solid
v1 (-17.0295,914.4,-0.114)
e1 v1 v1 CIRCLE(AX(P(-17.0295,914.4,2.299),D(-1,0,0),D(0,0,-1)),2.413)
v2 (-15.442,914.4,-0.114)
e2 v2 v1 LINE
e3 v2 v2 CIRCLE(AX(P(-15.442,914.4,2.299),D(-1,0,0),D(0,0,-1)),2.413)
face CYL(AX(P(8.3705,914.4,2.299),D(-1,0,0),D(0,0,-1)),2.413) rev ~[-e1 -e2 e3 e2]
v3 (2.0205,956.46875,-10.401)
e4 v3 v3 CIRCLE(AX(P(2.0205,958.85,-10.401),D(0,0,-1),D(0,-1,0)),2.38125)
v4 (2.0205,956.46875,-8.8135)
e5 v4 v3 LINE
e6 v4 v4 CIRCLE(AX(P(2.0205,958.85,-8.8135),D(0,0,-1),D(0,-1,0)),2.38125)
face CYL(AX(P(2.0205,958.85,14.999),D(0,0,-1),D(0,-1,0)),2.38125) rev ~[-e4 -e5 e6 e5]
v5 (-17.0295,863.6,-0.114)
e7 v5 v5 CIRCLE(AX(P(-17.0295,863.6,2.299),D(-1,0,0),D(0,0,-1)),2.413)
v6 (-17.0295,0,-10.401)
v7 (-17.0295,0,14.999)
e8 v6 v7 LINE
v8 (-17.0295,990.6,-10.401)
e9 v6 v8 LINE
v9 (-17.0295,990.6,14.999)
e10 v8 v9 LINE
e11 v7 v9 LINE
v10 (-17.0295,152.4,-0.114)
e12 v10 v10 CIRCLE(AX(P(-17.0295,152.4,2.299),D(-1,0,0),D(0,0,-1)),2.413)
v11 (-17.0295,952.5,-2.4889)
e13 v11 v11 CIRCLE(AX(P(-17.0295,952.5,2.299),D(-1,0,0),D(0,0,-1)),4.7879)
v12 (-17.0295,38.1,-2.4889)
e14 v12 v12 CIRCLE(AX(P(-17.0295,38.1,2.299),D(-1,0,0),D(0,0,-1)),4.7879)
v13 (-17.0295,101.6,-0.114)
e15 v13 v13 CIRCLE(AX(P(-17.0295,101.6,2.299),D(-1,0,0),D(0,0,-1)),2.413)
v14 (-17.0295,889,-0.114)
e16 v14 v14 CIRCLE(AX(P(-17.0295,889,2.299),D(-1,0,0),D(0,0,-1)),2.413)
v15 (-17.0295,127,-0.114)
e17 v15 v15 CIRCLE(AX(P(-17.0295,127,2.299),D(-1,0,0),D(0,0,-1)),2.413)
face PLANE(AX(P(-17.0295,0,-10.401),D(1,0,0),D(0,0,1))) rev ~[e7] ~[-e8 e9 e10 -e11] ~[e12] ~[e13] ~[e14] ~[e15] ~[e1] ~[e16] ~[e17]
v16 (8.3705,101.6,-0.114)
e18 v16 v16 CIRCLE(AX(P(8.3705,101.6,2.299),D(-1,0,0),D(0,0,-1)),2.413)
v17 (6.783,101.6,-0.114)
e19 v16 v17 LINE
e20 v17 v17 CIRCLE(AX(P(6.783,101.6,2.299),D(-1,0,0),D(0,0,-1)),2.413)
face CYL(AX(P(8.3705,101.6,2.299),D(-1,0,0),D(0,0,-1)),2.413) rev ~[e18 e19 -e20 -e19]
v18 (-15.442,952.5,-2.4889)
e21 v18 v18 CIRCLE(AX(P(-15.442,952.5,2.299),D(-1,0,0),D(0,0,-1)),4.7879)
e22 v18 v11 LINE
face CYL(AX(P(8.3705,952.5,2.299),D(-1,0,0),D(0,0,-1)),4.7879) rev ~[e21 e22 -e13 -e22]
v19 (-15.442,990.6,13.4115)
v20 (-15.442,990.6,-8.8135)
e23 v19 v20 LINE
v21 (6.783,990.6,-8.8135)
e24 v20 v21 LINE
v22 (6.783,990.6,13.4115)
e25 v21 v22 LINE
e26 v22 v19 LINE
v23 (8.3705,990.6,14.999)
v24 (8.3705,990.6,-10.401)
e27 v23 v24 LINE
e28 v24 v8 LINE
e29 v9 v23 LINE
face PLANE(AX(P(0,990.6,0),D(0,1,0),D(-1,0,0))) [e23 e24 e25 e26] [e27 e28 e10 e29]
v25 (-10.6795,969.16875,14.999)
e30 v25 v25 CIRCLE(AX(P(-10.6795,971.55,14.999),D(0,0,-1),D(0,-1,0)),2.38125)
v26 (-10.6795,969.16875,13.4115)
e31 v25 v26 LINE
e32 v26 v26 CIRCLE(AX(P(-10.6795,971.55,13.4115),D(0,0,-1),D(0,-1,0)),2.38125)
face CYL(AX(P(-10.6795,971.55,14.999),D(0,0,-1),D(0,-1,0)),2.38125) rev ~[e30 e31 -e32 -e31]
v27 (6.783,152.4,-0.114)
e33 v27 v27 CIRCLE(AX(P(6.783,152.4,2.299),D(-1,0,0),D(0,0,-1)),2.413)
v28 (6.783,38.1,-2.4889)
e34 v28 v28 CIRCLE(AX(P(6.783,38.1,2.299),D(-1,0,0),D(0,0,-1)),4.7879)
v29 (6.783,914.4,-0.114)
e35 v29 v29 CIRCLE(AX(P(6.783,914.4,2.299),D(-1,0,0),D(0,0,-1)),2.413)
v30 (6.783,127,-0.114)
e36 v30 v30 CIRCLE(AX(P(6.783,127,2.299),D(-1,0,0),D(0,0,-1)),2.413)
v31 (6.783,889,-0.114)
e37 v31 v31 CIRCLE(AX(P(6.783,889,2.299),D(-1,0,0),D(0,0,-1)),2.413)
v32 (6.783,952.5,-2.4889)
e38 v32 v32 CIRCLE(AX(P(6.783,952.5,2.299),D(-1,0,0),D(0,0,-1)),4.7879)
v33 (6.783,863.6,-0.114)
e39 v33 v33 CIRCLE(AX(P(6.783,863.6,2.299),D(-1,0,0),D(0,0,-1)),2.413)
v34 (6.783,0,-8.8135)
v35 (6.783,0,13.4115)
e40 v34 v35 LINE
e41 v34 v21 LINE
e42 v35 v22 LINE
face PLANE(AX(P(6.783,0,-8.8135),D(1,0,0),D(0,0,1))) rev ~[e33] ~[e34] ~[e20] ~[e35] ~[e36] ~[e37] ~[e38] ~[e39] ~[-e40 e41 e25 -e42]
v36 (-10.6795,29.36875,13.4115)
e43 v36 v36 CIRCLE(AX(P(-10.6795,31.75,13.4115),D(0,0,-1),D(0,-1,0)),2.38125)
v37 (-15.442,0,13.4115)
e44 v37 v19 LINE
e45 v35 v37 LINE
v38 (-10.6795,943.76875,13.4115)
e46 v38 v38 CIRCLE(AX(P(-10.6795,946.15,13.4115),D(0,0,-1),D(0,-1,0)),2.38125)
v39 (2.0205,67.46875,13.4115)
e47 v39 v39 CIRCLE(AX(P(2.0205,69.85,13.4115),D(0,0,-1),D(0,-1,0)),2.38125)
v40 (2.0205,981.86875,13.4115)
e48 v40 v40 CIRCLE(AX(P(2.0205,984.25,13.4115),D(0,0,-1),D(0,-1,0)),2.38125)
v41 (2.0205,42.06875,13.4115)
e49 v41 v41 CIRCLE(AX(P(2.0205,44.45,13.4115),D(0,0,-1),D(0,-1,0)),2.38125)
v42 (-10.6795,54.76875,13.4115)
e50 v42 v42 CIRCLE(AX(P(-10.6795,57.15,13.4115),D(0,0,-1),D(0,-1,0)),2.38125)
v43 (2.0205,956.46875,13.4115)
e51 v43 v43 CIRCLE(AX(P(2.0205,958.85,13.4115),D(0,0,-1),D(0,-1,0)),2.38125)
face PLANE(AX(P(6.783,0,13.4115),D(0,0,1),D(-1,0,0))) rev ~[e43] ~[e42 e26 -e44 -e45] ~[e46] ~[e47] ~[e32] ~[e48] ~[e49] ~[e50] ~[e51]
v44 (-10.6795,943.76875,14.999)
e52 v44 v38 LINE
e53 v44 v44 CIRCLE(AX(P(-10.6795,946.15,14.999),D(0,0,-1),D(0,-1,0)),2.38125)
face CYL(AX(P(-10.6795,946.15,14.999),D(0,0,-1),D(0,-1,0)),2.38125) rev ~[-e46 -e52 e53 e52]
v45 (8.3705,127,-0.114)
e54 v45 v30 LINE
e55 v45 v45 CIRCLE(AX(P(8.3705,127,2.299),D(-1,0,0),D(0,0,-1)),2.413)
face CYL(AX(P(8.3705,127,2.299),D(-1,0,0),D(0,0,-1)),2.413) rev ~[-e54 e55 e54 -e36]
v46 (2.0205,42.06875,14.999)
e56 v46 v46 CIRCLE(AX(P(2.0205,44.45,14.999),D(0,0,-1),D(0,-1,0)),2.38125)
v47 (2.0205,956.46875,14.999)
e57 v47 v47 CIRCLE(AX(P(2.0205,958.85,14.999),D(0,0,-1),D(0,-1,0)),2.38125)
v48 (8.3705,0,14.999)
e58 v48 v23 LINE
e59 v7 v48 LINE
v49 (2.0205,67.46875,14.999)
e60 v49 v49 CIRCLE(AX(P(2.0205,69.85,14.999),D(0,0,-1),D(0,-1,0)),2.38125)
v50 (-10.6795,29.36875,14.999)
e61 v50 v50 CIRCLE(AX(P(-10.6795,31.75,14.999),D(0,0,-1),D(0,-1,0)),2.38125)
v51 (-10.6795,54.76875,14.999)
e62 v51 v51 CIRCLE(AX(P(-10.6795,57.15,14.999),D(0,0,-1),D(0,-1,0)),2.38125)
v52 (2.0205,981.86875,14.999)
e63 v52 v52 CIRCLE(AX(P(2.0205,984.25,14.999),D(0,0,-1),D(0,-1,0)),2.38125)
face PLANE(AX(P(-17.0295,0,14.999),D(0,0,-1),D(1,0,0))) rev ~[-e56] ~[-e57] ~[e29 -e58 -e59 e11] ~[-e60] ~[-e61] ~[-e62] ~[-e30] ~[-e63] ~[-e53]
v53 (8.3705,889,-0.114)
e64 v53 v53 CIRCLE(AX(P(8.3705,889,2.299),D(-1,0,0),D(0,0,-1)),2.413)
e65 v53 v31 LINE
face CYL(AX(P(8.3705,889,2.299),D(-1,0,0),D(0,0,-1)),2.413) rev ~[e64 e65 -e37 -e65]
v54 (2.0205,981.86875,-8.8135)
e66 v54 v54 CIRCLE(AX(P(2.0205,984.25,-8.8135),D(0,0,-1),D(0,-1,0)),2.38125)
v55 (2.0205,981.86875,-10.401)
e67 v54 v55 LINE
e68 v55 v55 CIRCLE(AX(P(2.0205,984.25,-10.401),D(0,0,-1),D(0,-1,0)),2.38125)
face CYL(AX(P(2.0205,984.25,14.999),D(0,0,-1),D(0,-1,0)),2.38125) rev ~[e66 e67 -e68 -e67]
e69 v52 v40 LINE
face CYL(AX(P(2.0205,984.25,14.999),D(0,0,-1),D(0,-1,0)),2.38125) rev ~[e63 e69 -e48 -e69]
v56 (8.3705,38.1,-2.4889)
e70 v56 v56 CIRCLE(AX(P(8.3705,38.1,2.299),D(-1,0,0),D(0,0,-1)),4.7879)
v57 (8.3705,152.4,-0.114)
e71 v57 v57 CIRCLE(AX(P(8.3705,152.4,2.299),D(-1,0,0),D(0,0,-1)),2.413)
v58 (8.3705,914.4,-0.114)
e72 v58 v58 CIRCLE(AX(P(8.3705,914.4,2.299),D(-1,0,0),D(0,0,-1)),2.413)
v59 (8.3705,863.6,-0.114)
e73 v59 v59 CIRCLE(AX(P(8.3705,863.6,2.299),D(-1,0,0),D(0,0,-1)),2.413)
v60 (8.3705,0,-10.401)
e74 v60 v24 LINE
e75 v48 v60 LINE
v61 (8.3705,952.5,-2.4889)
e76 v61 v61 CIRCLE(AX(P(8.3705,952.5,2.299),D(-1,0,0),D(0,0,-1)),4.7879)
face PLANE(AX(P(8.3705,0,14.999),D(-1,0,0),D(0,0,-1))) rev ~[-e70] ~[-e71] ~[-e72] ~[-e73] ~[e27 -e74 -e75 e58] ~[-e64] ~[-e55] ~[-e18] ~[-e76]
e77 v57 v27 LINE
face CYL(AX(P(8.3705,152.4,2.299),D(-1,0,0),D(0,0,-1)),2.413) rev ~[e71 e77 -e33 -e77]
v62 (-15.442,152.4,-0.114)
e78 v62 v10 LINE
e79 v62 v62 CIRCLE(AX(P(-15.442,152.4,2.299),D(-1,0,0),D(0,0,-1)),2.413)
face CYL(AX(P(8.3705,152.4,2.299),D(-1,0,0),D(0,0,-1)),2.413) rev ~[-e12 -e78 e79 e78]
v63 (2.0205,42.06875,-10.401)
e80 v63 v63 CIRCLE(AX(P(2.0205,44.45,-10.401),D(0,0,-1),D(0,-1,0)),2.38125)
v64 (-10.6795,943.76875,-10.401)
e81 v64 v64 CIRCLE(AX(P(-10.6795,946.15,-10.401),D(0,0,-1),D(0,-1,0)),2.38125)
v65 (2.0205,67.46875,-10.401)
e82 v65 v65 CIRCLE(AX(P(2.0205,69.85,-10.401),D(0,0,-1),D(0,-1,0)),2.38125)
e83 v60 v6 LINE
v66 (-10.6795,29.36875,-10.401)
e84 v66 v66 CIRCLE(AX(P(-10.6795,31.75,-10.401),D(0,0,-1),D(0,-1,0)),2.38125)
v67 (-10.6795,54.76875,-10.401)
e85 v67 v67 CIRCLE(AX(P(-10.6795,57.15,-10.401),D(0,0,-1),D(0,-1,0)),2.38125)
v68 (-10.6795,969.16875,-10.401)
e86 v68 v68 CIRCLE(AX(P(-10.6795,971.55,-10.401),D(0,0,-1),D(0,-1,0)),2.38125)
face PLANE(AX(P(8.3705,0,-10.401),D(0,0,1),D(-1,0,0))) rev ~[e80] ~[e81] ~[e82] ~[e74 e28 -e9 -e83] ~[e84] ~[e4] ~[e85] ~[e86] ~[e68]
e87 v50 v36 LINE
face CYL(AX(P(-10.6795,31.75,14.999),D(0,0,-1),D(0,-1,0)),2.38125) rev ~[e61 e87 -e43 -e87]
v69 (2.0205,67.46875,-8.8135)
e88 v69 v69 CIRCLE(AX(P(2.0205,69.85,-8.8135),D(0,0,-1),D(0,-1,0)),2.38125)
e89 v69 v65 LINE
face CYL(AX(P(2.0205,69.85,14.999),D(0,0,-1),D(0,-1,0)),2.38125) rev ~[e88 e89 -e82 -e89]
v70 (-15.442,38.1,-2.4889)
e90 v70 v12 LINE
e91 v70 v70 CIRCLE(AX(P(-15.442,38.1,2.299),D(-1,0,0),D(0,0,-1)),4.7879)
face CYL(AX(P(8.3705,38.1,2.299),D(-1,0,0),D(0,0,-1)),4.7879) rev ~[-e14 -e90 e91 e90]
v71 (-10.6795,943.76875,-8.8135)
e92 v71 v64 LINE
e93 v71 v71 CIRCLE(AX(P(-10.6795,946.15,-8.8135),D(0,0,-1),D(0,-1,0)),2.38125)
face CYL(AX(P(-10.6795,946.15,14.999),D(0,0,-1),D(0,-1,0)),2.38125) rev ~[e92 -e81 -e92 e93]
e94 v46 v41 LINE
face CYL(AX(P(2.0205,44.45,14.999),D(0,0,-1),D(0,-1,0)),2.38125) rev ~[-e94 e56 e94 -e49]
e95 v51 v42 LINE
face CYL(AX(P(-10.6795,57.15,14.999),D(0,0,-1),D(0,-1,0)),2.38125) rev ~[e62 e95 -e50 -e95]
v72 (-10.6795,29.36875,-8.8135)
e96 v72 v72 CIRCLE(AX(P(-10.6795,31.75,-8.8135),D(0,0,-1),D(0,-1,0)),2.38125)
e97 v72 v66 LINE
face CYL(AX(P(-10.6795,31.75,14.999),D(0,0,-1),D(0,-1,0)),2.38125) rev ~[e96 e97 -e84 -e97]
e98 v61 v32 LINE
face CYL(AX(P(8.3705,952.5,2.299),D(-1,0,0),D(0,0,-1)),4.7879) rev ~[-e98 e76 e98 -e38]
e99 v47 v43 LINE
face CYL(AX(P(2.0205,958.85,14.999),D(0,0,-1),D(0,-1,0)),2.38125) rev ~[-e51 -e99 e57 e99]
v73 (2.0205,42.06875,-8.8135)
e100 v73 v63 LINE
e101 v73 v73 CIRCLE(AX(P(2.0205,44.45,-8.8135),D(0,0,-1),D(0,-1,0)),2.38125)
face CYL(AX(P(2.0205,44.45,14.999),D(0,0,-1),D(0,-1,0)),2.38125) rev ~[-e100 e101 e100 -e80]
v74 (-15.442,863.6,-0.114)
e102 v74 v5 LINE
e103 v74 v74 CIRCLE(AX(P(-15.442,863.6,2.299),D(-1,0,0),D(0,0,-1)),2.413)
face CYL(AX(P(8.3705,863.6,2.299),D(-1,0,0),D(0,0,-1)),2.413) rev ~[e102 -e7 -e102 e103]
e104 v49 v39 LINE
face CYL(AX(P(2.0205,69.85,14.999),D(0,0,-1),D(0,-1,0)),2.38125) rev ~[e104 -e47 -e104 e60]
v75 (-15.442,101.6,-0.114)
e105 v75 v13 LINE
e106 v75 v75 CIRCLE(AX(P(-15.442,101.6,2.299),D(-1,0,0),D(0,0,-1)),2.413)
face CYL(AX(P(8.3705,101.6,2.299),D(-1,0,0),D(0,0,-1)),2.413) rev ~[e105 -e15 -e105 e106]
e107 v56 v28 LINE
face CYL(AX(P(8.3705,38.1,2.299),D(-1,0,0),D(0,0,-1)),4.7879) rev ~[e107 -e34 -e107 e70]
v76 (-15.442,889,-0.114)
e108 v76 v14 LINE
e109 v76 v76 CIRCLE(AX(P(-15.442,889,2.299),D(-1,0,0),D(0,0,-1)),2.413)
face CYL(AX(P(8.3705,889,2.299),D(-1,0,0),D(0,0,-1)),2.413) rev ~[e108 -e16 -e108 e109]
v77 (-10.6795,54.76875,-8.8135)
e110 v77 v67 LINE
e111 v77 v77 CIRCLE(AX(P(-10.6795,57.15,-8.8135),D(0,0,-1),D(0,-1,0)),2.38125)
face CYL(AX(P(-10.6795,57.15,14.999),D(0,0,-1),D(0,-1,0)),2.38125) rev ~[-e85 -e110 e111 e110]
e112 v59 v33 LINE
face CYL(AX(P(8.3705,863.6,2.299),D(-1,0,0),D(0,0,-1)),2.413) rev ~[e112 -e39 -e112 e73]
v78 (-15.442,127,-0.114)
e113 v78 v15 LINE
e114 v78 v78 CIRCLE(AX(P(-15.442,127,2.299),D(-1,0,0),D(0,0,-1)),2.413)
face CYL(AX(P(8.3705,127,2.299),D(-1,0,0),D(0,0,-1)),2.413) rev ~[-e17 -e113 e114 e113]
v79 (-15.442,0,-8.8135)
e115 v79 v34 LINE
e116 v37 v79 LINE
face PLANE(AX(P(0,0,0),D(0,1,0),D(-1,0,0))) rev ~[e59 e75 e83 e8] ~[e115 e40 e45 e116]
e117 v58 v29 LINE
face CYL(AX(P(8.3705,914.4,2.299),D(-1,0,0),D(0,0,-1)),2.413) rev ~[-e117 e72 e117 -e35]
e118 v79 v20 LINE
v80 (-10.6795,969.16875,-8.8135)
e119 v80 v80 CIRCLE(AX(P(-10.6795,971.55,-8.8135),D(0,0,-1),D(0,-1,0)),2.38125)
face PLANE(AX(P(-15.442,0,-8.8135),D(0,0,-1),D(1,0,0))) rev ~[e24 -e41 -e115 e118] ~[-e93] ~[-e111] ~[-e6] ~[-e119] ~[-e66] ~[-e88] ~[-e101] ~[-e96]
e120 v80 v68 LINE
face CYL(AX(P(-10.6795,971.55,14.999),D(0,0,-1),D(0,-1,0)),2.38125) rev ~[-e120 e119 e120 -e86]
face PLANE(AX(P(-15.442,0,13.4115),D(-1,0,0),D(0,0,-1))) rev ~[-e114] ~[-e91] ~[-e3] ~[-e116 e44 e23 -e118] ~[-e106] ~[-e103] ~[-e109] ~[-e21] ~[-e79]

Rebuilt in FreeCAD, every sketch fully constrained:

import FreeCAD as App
import Part
import Sketcher

V = App.Vector
Q = App.Units.Quantity

doc = App.newDocument("Part")
body = doc.addObject("PartDesign::Body", "Body")

# Sketch on XZ plane
sketch1 = body.newObject("Sketcher::SketchObject", "Sketch")
sketch1.AttachmentSupport = (doc.getObject("XZ_Plane"), [""])
sketch1.MapMode = "FlatFace"
sketch1.addGeometry([
    Part.LineSegment(V(-17, -10, 0), V(-17, 15, 0)),  # 0
    Part.LineSegment(V(-17, 15, 0), V(8, 15, 0)),  # 1
    Part.LineSegment(V(8, 15, 0), V(8, -10, 0)),  # 2
    Part.LineSegment(V(8, -10, 0), V(-17, -10, 0)),  # 3
    Part.LineSegment(V(-15, 13, 0), V(-15, -9, 0)),  # 4
    Part.LineSegment(V(-15, -9, 0), V(7, -9, 0)),  # 5
    Part.LineSegment(V(7, -9, 0), V(7, 13, 0)),  # 6
    Part.LineSegment(V(7, 13, 0), V(-15, 13, 0)),  # 7
], False)
sketch1.addConstraint([
    Sketcher.Constraint("Coincident", 0, 2, 1, 1),
    Sketcher.Constraint("Coincident", 1, 2, 2, 1),
    Sketcher.Constraint("Coincident", 2, 2, 3, 1),
    Sketcher.Constraint("Coincident", 3, 2, 0, 1),
    Sketcher.Constraint("Coincident", 4, 2, 5, 1),
    Sketcher.Constraint("Coincident", 5, 2, 6, 1),
    Sketcher.Constraint("Coincident", 6, 2, 7, 1),
    Sketcher.Constraint("Coincident", 7, 2, 4, 1),
    Sketcher.Constraint("Vertical", 0),
    Sketcher.Constraint("Horizontal", 1),
    Sketcher.Constraint("Vertical", 2),
    Sketcher.Constraint("Horizontal", 3),
    Sketcher.Constraint("Vertical", 4),
    Sketcher.Constraint("Horizontal", 5),
    Sketcher.Constraint("Vertical", 6),
    Sketcher.Constraint("Horizontal", 7),
    Sketcher.Constraint("Equal", 3, 0),
    Sketcher.Constraint("Equal", 7, 4),
    Sketcher.Constraint("DistanceX", 1, 1, 1, 2, Q("1 in")),
    Sketcher.Constraint("DistanceX", 3, 2, 4, 2, Q("0.0625 in")),
    Sketcher.Constraint("DistanceY", 3, 2, 4, 2, Q("0.0625 in")),
    Sketcher.Constraint("DistanceX", 5, 2, 2, 2, Q("0.0625 in")),
    Sketcher.Constraint("DistanceY", 4, 2, -1, 1, Q("0.347 in")),
    Sketcher.Constraint("DistanceX", 0, 2, -1, 1, 17.0295),
])
pad1 = body.newObject("PartDesign::Pad", "Pad")
pad1.Profile = sketch1
pad1.Length = Q("39 in")
pad1.Reversed = True

# Sketch on YZ plane
sketch2 = body.newObject("Sketcher::SketchObject", "Sketch001")
sketch2.AttachmentSupport = (doc.getObject("YZ_Plane"), [""])
sketch2.MapMode = "FlatFace"
sketch2.AttachmentOffset = App.Placement(V(0, 0, 8.3705), App.Rotation())
sketch2.addGeometry(Part.Circle(V(38.1, 2.3, 0), V(0, 0, 1), 4.8), False)
sketch2.addConstraint([
    Sketcher.Constraint("Diameter", 0, Q("0.377 in")),
    Sketcher.Constraint("DistanceX", -1, 1, 0, 3, Q("1.5 in")),
    Sketcher.Constraint("DistanceY", -1, 1, 0, 3, Q("0.0905 in")),
])
doc.recompute()
hole = body.newObject("PartDesign::Hole", "Hole")
hole.Profile = sketch2
hole.ThreadType = "None"
hole.Diameter = Q("0.377 in")
hole.DepthType = "Dimension"
hole.Depth = Q("1 in")
hole.DrillPoint = "Angled"
hole.DrillPointAngle = 118

# Sketch on YZ plane
sketch3 = body.newObject("Sketcher::SketchObject", "Sketch002")
sketch3.AttachmentSupport = (doc.getObject("YZ_Plane"), [""])
sketch3.MapMode = "FlatFace"
sketch3.AttachmentOffset = App.Placement(V(0, 0, 8.3705), App.Rotation())
sketch3.addGeometry(Part.Circle(V(952.5, 2.3, 0), V(0, 0, 1), 4.8), False)
sketch3.addConstraint([
    Sketcher.Constraint("Diameter", 0, Q("0.377 in")),
    Sketcher.Constraint("DistanceX", -1, 1, 0, 3, Q("37.5 in")),
    Sketcher.Constraint("DistanceY", -1, 1, 0, 3, Q("0.0905 in")),
])
doc.recompute()
hole2 = body.newObject("PartDesign::Hole", "Hole001")
hole2.Profile = sketch3
hole2.ThreadType = "None"
hole2.Diameter = Q("0.377 in")
hole2.DepthType = "Dimension"
hole2.Depth = Q("1 in")
hole2.DrillPoint = "Angled"
hole2.DrillPointAngle = 118

# Sketch on YZ plane
sketch4 = body.newObject("Sketcher::SketchObject", "Sketch003")
sketch4.AttachmentSupport = (doc.getObject("YZ_Plane"), [""])
sketch4.MapMode = "FlatFace"
sketch4.AttachmentOffset = App.Placement(V(0, 0, 8.3705), App.Rotation())
sketch4.addGeometry([
    Part.Circle(V(101.6, 2.3, 0), V(0, 0, 1), 2.4),
    Part.Circle(V(127, 2.3, 0), V(0, 0, 1), 2.4),
    Part.Circle(V(152.4, 2.3, 0), V(0, 0, 1), 2.4),
], False)
sketch4.addConstraint([
    Sketcher.Constraint("Equal", 0, 1),
    Sketcher.Constraint("Equal", 1, 2),
    Sketcher.Constraint("Horizontal", 0, 3, 1, 3),
    Sketcher.Constraint("Horizontal", 1, 3, 2, 3),
    Sketcher.Constraint("Diameter", 0, Q("0.19 in")),
    Sketcher.Constraint("DistanceX", -1, 1, 0, 3, Q("4 in")),
    Sketcher.Constraint("DistanceX", -1, 1, 1, 3, Q("5 in")),
    Sketcher.Constraint("DistanceX", -1, 1, 2, 3, Q("6 in")),
    Sketcher.Constraint("DistanceY", -1, 1, 0, 3, Q("0.0905 in")),
])
doc.recompute()
hole3 = body.newObject("PartDesign::Hole", "Hole002")
hole3.Profile = sketch4
hole3.ThreadType = "None"
hole3.Diameter = Q("0.19 in")
hole3.DepthType = "Dimension"
hole3.Depth = Q("1 in")
hole3.DrillPoint = "Angled"
hole3.DrillPointAngle = 118

# Sketch on YZ plane
sketch5 = body.newObject("Sketcher::SketchObject", "Sketch004")
sketch5.AttachmentSupport = (doc.getObject("YZ_Plane"), [""])
sketch5.MapMode = "FlatFace"
sketch5.AttachmentOffset = App.Placement(V(0, 0, 8.3705), App.Rotation())
sketch5.addGeometry([
    Part.Circle(V(914.4, 2.3, 0), V(0, 0, 1), 2.4),
    Part.Circle(V(889, 2.3, 0), V(0, 0, 1), 2.4),
    Part.Circle(V(863.6, 2.3, 0), V(0, 0, 1), 2.4),
], False)
sketch5.addConstraint([
    Sketcher.Constraint("Equal", 0, 1),
    Sketcher.Constraint("Equal", 1, 2),
    Sketcher.Constraint("Horizontal", 0, 3, 1, 3),
    Sketcher.Constraint("Horizontal", 1, 3, 2, 3),
    Sketcher.Constraint("Diameter", 0, Q("0.19 in")),
    Sketcher.Constraint("DistanceX", -1, 1, 0, 3, Q("36 in")),
    Sketcher.Constraint("DistanceX", -1, 1, 1, 3, Q("35 in")),
    Sketcher.Constraint("DistanceX", -1, 1, 2, 3, Q("34 in")),
    Sketcher.Constraint("DistanceY", -1, 1, 0, 3, Q("0.0905 in")),
])
doc.recompute()
hole4 = body.newObject("PartDesign::Hole", "Hole003")
hole4.Profile = sketch5
hole4.ThreadType = "None"
hole4.Diameter = Q("0.19 in")
hole4.DepthType = "Dimension"
hole4.Depth = Q("1 in")
hole4.DrillPoint = "Angled"
hole4.DrillPointAngle = 118

# Sketch on XY plane
sketch6 = body.newObject("Sketcher::SketchObject", "Sketch005")
sketch6.AttachmentSupport = (doc.getObject("XY_Plane"), [""])
sketch6.MapMode = "FlatFace"
sketch6.AttachmentOffset = App.Placement(V(0, 0, 0.5905118 * 25.4), App.Rotation())
sketch6.addGeometry([
    Part.Circle(V(-10.7, 971.5, 0), V(0, 0, 1), 2.4),
    Part.Circle(V(2, 984.2, 0), V(0, 0, 1), 2.4),
    Part.Circle(V(-10.7, 946.1, 0), V(0, 0, 1), 2.4),
    Part.Circle(V(2, 958.9, 0), V(0, 0, 1), 2.4),
], False)
sketch6.addConstraint([
    Sketcher.Constraint("Equal", 0, 1),
    Sketcher.Constraint("Equal", 1, 2),
    Sketcher.Constraint("Equal", 2, 3),
    Sketcher.Constraint("Vertical", 0, 3, 2, 3),
    Sketcher.Constraint("Vertical", 1, 3, 3, 3),
    Sketcher.Constraint("Diameter", 0, Q("0.1875 in")),
    Sketcher.Constraint("DistanceY", 2, 3, 0, 3, Q("1 in")),
    Sketcher.Constraint("DistanceY", 3, 3, 1, 3, Q("1 in")),
    Sketcher.Constraint("DistanceX", 0, 3, 1, 3, Q("0.5 in")),
    Sketcher.Constraint("DistanceY", 0, 3, 1, 3, Q("0.5 in")),
    Sketcher.Constraint("DistanceY", -1, 1, 0, 3, Q("38.25 in")),
    Sketcher.Constraint("DistanceX", 0, 3, -1, 1, 10.6795),
])
doc.recompute()
hole5 = body.newObject("PartDesign::Hole", "Hole004")
hole5.Profile = sketch6
hole5.ThreadType = "None"
hole5.Diameter = Q("0.1875 in")
hole5.DepthType = "Dimension"
hole5.Depth = Q("1 in")
hole5.DrillPoint = "Angled"
hole5.DrillPointAngle = 118

# Sketch on XY plane
sketch7 = body.newObject("Sketcher::SketchObject", "Sketch006")
sketch7.AttachmentSupport = (doc.getObject("XY_Plane"), [""])
sketch7.MapMode = "FlatFace"
sketch7.AttachmentOffset = App.Placement(V(0, 0, 0.5905118 * 25.4), App.Rotation())
sketch7.addGeometry([
    Part.Circle(V(2, 44.5, 0), V(0, 0, 1), 2.4),
    Part.Circle(V(2, 69.8, 0), V(0, 0, 1), 2.4),
    Part.Circle(V(-10.7, 31.8, 0), V(0, 0, 1), 2.4),
    Part.Circle(V(-10.7, 57.1, 0), V(0, 0, 1), 2.4),
], False)
sketch7.addConstraint([
    Sketcher.Constraint("Equal", 0, 1),
    Sketcher.Constraint("Equal", 1, 2),
    Sketcher.Constraint("Equal", 2, 3),
    Sketcher.Constraint("Vertical", 0, 3, 1, 3),
    Sketcher.Constraint("Vertical", 2, 3, 3, 3),
    Sketcher.Constraint("Diameter", 0, Q("0.1875 in")),
    Sketcher.Constraint("DistanceY", 0, 3, 1, 3, Q("1 in")),
    Sketcher.Constraint("DistanceY", 2, 3, 3, 3, Q("1 in")),
    Sketcher.Constraint("DistanceX", 2, 3, 0, 3, Q("0.5 in")),
    Sketcher.Constraint("DistanceY", 2, 3, 0, 3, Q("0.5 in")),
    Sketcher.Constraint("DistanceY", -1, 1, 0, 3, Q("1.75 in")),
    Sketcher.Constraint("DistanceX", -1, 1, 0, 3, 2.0205),
])
doc.recompute()
hole6 = body.newObject("PartDesign::Hole", "Hole005")
hole6.Profile = sketch7
hole6.ThreadType = "None"
hole6.Diameter = Q("0.1875 in")
hole6.DepthType = "Dimension"
hole6.Depth = Q("1 in")
hole6.DrillPoint = "Angled"
hole6.DrillPointAngle = 118

doc.recompute()
